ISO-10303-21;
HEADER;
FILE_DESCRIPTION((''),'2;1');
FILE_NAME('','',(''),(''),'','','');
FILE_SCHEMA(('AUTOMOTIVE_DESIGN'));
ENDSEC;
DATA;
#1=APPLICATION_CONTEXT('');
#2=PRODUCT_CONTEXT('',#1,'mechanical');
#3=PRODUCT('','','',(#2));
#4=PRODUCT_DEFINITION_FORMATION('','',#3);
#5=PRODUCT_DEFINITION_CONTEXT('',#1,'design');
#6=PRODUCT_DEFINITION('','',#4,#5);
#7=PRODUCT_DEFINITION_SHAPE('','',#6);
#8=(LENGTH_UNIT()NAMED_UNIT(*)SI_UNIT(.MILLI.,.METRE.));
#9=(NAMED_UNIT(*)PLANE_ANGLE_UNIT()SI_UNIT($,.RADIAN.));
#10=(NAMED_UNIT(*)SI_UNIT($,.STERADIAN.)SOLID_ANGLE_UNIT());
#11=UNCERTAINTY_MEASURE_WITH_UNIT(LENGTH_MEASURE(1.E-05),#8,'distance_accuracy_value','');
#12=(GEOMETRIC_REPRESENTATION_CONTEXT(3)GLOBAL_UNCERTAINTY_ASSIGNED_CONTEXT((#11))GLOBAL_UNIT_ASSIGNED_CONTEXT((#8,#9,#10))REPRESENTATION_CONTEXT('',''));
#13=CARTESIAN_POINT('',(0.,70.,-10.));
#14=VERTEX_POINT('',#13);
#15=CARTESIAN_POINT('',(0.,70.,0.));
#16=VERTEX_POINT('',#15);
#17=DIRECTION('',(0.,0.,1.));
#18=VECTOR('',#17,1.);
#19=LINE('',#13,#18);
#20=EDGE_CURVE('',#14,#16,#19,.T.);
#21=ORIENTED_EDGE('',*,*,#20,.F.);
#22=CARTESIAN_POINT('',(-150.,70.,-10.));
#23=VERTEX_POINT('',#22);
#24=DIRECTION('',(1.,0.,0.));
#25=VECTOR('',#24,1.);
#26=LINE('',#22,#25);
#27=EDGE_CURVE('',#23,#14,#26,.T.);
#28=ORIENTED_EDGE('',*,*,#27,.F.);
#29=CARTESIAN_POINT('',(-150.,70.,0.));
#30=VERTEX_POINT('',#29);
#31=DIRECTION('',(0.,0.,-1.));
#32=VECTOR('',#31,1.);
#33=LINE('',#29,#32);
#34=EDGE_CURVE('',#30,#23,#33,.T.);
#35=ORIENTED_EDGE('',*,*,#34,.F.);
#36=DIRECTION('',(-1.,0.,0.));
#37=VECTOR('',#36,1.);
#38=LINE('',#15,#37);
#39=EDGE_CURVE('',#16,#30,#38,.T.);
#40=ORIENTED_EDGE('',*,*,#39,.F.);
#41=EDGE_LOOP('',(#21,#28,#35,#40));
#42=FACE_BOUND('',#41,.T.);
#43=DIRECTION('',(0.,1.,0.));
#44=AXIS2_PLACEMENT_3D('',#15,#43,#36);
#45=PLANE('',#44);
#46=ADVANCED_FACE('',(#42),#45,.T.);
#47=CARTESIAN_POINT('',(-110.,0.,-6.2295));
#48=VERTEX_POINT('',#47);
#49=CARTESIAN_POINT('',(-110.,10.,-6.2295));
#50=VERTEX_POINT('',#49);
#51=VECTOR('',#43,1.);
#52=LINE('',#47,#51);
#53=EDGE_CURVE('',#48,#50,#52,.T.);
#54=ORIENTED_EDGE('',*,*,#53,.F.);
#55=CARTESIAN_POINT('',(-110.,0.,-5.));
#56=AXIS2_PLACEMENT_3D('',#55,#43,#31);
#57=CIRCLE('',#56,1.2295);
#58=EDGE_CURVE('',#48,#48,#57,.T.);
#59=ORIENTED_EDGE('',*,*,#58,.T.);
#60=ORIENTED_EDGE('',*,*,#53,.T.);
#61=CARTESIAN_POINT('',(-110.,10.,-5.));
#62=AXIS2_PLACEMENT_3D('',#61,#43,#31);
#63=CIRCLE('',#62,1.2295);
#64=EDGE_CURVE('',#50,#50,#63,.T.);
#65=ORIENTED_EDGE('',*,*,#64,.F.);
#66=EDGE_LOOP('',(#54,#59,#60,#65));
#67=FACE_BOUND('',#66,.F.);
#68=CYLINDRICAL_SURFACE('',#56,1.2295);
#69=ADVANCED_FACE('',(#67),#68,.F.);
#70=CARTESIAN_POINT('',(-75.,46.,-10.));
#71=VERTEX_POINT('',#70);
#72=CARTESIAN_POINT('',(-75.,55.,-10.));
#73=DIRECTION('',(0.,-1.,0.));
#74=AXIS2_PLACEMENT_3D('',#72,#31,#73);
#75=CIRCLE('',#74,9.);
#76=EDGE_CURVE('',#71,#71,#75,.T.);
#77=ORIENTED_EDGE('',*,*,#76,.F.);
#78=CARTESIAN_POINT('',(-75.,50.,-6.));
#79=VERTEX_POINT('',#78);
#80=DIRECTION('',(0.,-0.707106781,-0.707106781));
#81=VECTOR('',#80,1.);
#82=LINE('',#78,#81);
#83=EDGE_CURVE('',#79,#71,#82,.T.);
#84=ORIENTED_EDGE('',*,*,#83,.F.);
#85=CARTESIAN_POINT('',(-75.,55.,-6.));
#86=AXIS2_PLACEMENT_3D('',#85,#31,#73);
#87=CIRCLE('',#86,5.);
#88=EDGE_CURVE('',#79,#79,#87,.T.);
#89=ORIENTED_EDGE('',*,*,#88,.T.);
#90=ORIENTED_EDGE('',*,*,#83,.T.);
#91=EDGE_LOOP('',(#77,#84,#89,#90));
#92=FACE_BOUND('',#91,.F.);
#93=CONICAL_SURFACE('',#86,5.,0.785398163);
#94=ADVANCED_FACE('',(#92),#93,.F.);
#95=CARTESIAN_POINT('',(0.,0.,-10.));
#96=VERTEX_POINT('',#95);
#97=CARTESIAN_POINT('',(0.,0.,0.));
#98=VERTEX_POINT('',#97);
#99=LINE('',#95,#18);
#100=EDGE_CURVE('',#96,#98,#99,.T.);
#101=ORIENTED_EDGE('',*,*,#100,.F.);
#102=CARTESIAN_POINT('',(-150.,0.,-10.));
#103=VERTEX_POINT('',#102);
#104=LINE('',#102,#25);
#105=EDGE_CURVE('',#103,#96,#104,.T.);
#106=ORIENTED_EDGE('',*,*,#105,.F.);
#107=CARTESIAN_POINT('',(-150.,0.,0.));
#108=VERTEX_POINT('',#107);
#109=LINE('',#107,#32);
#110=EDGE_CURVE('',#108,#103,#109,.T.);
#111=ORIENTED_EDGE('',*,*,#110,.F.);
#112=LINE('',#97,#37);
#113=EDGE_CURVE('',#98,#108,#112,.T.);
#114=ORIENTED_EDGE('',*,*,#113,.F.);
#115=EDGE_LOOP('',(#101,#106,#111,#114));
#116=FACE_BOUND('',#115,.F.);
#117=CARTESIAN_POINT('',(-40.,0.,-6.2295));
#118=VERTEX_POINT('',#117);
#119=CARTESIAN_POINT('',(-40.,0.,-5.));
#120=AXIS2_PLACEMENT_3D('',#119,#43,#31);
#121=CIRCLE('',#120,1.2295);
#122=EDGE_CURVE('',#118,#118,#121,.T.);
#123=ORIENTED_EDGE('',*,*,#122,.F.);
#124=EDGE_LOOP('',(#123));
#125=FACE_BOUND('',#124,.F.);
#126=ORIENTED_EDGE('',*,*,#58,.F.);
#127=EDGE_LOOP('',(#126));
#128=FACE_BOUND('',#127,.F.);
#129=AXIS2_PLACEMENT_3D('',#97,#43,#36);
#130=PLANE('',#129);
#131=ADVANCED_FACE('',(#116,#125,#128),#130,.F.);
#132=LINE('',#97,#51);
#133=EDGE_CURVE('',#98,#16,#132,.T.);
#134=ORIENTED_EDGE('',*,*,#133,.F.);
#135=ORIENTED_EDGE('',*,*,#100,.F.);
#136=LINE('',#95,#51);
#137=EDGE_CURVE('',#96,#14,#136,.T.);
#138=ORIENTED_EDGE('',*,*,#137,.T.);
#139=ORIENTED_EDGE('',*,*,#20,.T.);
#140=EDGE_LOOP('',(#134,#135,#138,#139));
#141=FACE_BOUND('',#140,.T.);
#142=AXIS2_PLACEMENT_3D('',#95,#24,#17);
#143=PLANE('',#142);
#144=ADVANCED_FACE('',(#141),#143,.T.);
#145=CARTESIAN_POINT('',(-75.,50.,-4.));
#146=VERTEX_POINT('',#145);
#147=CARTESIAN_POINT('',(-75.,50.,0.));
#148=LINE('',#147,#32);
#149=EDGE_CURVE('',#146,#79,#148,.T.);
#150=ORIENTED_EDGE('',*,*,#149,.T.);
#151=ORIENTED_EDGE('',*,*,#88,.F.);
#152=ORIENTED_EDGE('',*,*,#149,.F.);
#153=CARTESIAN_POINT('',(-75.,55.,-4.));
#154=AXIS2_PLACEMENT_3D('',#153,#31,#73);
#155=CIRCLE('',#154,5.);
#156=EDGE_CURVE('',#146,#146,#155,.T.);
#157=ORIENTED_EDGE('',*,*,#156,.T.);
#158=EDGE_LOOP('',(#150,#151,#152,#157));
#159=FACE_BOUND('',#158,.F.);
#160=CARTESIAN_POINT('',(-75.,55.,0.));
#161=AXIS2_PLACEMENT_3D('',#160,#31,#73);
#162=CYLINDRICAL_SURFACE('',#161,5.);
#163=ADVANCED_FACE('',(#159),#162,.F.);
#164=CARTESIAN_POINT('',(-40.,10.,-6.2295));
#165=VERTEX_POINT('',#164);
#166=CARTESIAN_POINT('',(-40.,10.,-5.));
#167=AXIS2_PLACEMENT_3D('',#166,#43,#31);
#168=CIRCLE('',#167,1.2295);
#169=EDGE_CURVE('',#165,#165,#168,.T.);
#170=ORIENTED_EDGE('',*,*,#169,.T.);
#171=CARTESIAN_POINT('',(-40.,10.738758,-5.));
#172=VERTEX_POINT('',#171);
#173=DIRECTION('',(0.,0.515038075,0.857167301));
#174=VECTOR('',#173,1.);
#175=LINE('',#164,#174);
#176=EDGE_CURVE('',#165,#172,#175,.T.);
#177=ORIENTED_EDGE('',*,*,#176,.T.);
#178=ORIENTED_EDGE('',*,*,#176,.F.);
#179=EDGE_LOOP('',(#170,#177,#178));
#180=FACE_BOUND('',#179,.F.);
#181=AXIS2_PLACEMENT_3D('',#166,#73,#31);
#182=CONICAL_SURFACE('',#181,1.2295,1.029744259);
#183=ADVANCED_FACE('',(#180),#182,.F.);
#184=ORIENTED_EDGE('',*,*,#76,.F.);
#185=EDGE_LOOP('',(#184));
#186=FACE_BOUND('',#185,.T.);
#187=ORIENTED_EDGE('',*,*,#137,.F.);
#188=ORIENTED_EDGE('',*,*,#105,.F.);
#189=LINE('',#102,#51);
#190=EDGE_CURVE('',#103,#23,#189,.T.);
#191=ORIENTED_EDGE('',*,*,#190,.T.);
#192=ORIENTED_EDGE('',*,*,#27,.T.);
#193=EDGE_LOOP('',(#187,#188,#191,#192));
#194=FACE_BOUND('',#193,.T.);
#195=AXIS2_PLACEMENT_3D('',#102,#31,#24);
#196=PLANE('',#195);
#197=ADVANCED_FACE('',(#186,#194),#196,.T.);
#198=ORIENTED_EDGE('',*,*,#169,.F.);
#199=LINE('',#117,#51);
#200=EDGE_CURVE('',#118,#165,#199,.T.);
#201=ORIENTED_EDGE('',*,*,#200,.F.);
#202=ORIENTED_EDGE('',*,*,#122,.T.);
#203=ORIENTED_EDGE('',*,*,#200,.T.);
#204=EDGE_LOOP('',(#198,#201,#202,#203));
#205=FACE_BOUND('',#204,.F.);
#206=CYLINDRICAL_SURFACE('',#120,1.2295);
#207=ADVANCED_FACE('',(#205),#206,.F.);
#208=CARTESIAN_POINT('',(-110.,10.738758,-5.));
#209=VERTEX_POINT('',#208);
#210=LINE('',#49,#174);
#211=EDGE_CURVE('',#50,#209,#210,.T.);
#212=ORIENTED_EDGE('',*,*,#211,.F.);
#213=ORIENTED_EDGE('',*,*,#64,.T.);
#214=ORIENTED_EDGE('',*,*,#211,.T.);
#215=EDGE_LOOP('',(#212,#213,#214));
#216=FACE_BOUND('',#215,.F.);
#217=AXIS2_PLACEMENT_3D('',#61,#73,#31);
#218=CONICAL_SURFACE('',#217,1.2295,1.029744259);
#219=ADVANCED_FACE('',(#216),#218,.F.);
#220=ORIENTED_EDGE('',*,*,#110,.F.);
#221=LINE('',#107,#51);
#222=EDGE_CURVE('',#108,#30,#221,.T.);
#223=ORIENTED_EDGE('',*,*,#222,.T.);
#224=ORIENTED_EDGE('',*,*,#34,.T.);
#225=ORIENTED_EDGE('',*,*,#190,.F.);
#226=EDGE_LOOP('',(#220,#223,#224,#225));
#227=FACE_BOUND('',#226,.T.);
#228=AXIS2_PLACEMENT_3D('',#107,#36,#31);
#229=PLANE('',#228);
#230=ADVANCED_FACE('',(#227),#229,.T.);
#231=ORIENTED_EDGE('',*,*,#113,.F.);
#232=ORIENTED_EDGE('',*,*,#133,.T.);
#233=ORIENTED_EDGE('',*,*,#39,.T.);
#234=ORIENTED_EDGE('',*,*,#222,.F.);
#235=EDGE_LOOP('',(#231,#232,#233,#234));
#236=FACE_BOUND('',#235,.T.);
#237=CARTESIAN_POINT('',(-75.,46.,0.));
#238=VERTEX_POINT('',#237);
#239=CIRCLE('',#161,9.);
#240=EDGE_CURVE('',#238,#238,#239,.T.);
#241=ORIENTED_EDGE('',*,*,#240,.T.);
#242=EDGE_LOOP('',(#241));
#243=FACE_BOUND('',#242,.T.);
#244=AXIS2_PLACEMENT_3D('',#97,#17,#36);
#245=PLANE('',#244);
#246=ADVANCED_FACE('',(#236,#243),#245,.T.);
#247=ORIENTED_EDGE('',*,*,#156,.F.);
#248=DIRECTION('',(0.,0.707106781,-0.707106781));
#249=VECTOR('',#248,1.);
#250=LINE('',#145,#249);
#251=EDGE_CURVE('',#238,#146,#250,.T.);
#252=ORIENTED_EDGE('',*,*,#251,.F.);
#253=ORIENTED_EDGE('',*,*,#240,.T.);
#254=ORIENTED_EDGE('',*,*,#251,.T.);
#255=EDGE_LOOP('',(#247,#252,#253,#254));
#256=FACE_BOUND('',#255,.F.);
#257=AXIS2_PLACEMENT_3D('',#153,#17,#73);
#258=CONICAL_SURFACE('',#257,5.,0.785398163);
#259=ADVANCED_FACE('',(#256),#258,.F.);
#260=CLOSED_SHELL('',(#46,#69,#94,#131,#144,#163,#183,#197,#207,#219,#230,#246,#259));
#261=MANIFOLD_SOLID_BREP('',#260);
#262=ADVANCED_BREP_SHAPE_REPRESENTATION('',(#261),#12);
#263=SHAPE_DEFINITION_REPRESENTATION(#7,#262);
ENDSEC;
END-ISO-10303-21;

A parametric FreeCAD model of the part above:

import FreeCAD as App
import Part
import Sketcher


def edges_at(feature, points):
    """Names of the edges that pass closest to the given points."""
    edges = feature.Shape.Edges
    near = lambda p: min(range(len(edges)), key=lambda i: edges[i].distToShape(Part.Vertex(*p))[0])
    return sorted({f"Edge{near(p) + 1}" for p in points})

doc = App.newDocument("Part")
body = doc.addObject("PartDesign::Body", "Body")

# Sketch on XZ plane
sketch1 = body.newObject("Sketcher::SketchObject", "Sketch")
sketch1.AttachmentSupport = (doc.getObject("XZ_Plane"), [""])
sketch1.MapMode = "FlatFace"
sketch1.addGeometry(Part.LineSegment(App.Vector(-150, 0, 0), App.Vector(0, 0, 0)), False)
sketch1.addGeometry(Part.LineSegment(App.Vector(0, 0, 0), App.Vector(0, -10, 0)), False)
sketch1.addGeometry(Part.LineSegment(App.Vector(0, -10, 0), App.Vector(-150, -10, 0)), False)
sketch1.addGeometry(Part.LineSegment(App.Vector(-150, -10, 0), App.Vector(-150, 0, 0)), False)
sketch1.addConstraint(Sketcher.Constraint("Coincident", 0, 2, 1, 1))
sketch1.addConstraint(Sketcher.Constraint("Coincident", 1, 2, 2, 1))
sketch1.addConstraint(Sketcher.Constraint("Coincident", 2, 2, 3, 1))
sketch1.addConstraint(Sketcher.Constraint("Coincident", 3, 2, 0, 1))
sketch1.addConstraint(Sketcher.Constraint("Horizontal", 0))
sketch1.addConstraint(Sketcher.Constraint("Vertical", 1))
sketch1.addConstraint(Sketcher.Constraint("Horizontal", 2))
sketch1.addConstraint(Sketcher.Constraint("Vertical", 3))
sketch1.addConstraint(Sketcher.Constraint("Coincident", 0, 2, -1, 1))
sketch1.addConstraint(Sketcher.Constraint("DistanceX", 0, 1, 0, 2, 150.0))
sketch1.addConstraint(Sketcher.Constraint("DistanceY", 1, 2, 1, 1, 10.0))
pad1 = body.newObject("PartDesign::Pad", "Pad")
pad1.Profile = sketch1
pad1.Length = 70
pad1.Reversed = True

# Sketch on XY plane
sketch2 = body.newObject("Sketcher::SketchObject", "Sketch001")
sketch2.AttachmentSupport = (doc.getObject("XY_Plane"), [""])
sketch2.MapMode = "FlatFace"
sketch2.addGeometry(Part.Circle(App.Vector(-75, 55, 0), App.Vector(0, 0, 1), 5), False)
sketch2.addConstraint(Sketcher.Constraint("Diameter", 0, 10.0))
sketch2.addConstraint(Sketcher.Constraint("DistanceX", 0, 3, -1, 1, 75.0))
sketch2.addConstraint(Sketcher.Constraint("DistanceY", -1, 1, 0, 3, 55.0))
doc.recompute()
hole = body.newObject("PartDesign::Hole", "Hole")
hole.Profile = sketch2
hole.ThreadType = "None"
hole.Diameter = 10
hole.DepthType = "Dimension"
hole.Depth = 10
hole.DrillPoint = "Angled"
hole.DrillPointAngle = 118
doc.recompute()

chamfer = body.newObject("PartDesign::Chamfer", "Chamfer")
chamfer.Base = (hole, edges_at(hole, [(-75, 60, 0)]))
chamfer.Size = 4

# Sketch on XZ plane
sketch3 = body.newObject("Sketcher::SketchObject", "Sketch002")
sketch3.AttachmentSupport = (doc.getObject("XZ_Plane"), [""])
sketch3.MapMode = "FlatFace"
sketch3.addGeometry(Part.Circle(App.Vector(-40, -5, 0), App.Vector(0, 0, 1), 1.2), False)
sketch3.addGeometry(Part.Circle(App.Vector(-110, -5, 0), App.Vector(0, 0, 1), 1.2), False)
sketch3.addConstraint(Sketcher.Constraint("Equal", 0, 1))
sketch3.addConstraint(Sketcher.Constraint("Horizontal", 0, 3, 1, 3))
sketch3.addConstraint(Sketcher.Constraint("Diameter", 0, 2.459))
sketch3.addConstraint(Sketcher.Constraint("DistanceX", 0, 3, -1, 1, 40.0))
sketch3.addConstraint(Sketcher.Constraint("DistanceY", 0, 3, -1, 1, 5.0))
sketch3.addConstraint(Sketcher.Constraint("DistanceX", 1, 3, -1, 1, 110.0))
doc.recompute()
hole2 = body.newObject("PartDesign::Hole", "Hole001")
hole2.Profile = sketch3
hole2.ThreadType = "None"
hole2.Diameter = 2.459
hole2.DepthType = "Dimension"
hole2.Depth = 10
hole2.DrillPoint = "Angled"
hole2.DrillPointAngle = 118
doc.recompute()

chamfer2 = body.newObject("PartDesign::Chamfer", "Chamfer001")
chamfer2.Base = (hole2, edges_at(hole2, [(-75, 60, -10)]))
chamfer2.Size = 4

doc.recompute()
